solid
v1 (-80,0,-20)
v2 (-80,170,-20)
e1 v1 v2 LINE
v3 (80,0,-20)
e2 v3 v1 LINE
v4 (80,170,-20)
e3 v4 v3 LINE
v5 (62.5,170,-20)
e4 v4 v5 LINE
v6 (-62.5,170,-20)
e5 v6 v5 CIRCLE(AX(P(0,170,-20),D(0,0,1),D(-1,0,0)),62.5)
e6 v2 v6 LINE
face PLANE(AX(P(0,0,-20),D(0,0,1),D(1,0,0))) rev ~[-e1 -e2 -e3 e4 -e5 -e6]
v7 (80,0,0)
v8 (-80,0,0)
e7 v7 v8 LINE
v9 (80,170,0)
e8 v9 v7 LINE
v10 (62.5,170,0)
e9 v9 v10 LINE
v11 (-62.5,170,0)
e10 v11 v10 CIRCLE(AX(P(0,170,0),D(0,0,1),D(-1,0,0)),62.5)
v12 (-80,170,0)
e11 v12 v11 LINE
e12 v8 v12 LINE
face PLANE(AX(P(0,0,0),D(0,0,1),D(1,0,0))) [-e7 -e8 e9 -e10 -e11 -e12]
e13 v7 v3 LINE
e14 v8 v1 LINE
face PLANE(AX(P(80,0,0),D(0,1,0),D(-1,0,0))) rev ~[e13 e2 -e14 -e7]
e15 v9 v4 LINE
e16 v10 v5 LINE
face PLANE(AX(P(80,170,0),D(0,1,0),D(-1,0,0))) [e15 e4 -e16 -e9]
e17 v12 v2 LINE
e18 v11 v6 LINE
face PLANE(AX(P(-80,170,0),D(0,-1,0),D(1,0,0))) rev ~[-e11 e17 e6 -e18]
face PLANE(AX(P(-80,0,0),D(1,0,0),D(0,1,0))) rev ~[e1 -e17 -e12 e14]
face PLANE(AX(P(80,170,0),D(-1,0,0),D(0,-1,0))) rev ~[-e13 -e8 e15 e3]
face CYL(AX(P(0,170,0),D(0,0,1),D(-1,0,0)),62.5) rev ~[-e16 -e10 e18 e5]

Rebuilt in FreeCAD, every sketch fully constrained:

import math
import FreeCAD as App
import Part
import Sketcher
from FreeCAD import Vector
Q = App.Units.Quantity

doc = App.newDocument("Part")
body = doc.addObject("PartDesign::Body", "Body")

# Sketch on XY plane
sketch1 = doc.addObject("Sketcher::SketchObject", "Sketch")
body.addObject(sketch1)
sketch1.AttachmentSupport = (doc.XY_Plane, [""])
sketch1.MapMode = "FlatFace"
sketch1.addGeometry(Part.LineSegment(Vector(80, 0, 0), Vector(80, 170, 0)), False)
sketch1.addGeometry(Part.LineSegment(Vector(80, 170, 0), Vector(62, 170, 0)), False)
sketch1.addGeometry(Part.ArcOfCircle(Part.Circle(Vector(0, 170, 0), Vector(0, 0, 1), 62), math.radians(180), math.radians(360)), False)
sketch1.addGeometry(Part.LineSegment(Vector(-62, 170, 0), Vector(-80, 170, 0)), False)
sketch1.addGeometry(Part.LineSegment(Vector(-80, 170, 0), Vector(-80, 0, 0)), False)
sketch1.addGeometry(Part.LineSegment(Vector(-80, 0, 0), Vector(80, 0, 0)), False)
sketch1.addConstraint(Sketcher.Constraint("Coincident", 0, 2, 1, 1))
sketch1.addConstraint(Sketcher.Constraint("Coincident", 1, 2, 2, 2))
sketch1.addConstraint(Sketcher.Constraint("Coincident", 2, 1, 3, 1))
sketch1.addConstraint(Sketcher.Constraint("Coincident", 3, 2, 4, 1))
sketch1.addConstraint(Sketcher.Constraint("Coincident", 4, 2, 5, 1))
sketch1.addConstraint(Sketcher.Constraint("Coincident", 5, 2, 0, 1))
sketch1.addConstraint(Sketcher.Constraint("Vertical", 0))
sketch1.addConstraint(Sketcher.Constraint("Horizontal", 1))
sketch1.addConstraint(Sketcher.Constraint("Horizontal", 3))
sketch1.addConstraint(Sketcher.Constraint("Vertical", 4))
sketch1.addConstraint(Sketcher.Constraint("Horizontal", 5))
sketch1.addConstraint(Sketcher.Constraint("Symmetric", 4, 2, 5, 2, -1, 1))
sketch1.addConstraint(Sketcher.Constraint("Symmetric", 1, 2, 2, 1, -2))
sketch1.addConstraint(Sketcher.Constraint("Horizontal", 2, 3, 0, 2))
sketch1.addConstraint(Sketcher.Constraint("Radius", 2, Q("62.5 mm")))
sketch1.addConstraint(Sketcher.Constraint("DistanceX", 5, 1, 5, 2, Q("160 mm")))
sketch1.addConstraint(Sketcher.Constraint("DistanceY", 0, 1, 0, 2, Q("170 mm")))
pad1 = doc.addObject("PartDesign::Pad", "Pad")
body.addObject(pad1)
pad1.Profile = sketch1
pad1.Length = 20
pad1.Reversed = True

doc.recompute()
